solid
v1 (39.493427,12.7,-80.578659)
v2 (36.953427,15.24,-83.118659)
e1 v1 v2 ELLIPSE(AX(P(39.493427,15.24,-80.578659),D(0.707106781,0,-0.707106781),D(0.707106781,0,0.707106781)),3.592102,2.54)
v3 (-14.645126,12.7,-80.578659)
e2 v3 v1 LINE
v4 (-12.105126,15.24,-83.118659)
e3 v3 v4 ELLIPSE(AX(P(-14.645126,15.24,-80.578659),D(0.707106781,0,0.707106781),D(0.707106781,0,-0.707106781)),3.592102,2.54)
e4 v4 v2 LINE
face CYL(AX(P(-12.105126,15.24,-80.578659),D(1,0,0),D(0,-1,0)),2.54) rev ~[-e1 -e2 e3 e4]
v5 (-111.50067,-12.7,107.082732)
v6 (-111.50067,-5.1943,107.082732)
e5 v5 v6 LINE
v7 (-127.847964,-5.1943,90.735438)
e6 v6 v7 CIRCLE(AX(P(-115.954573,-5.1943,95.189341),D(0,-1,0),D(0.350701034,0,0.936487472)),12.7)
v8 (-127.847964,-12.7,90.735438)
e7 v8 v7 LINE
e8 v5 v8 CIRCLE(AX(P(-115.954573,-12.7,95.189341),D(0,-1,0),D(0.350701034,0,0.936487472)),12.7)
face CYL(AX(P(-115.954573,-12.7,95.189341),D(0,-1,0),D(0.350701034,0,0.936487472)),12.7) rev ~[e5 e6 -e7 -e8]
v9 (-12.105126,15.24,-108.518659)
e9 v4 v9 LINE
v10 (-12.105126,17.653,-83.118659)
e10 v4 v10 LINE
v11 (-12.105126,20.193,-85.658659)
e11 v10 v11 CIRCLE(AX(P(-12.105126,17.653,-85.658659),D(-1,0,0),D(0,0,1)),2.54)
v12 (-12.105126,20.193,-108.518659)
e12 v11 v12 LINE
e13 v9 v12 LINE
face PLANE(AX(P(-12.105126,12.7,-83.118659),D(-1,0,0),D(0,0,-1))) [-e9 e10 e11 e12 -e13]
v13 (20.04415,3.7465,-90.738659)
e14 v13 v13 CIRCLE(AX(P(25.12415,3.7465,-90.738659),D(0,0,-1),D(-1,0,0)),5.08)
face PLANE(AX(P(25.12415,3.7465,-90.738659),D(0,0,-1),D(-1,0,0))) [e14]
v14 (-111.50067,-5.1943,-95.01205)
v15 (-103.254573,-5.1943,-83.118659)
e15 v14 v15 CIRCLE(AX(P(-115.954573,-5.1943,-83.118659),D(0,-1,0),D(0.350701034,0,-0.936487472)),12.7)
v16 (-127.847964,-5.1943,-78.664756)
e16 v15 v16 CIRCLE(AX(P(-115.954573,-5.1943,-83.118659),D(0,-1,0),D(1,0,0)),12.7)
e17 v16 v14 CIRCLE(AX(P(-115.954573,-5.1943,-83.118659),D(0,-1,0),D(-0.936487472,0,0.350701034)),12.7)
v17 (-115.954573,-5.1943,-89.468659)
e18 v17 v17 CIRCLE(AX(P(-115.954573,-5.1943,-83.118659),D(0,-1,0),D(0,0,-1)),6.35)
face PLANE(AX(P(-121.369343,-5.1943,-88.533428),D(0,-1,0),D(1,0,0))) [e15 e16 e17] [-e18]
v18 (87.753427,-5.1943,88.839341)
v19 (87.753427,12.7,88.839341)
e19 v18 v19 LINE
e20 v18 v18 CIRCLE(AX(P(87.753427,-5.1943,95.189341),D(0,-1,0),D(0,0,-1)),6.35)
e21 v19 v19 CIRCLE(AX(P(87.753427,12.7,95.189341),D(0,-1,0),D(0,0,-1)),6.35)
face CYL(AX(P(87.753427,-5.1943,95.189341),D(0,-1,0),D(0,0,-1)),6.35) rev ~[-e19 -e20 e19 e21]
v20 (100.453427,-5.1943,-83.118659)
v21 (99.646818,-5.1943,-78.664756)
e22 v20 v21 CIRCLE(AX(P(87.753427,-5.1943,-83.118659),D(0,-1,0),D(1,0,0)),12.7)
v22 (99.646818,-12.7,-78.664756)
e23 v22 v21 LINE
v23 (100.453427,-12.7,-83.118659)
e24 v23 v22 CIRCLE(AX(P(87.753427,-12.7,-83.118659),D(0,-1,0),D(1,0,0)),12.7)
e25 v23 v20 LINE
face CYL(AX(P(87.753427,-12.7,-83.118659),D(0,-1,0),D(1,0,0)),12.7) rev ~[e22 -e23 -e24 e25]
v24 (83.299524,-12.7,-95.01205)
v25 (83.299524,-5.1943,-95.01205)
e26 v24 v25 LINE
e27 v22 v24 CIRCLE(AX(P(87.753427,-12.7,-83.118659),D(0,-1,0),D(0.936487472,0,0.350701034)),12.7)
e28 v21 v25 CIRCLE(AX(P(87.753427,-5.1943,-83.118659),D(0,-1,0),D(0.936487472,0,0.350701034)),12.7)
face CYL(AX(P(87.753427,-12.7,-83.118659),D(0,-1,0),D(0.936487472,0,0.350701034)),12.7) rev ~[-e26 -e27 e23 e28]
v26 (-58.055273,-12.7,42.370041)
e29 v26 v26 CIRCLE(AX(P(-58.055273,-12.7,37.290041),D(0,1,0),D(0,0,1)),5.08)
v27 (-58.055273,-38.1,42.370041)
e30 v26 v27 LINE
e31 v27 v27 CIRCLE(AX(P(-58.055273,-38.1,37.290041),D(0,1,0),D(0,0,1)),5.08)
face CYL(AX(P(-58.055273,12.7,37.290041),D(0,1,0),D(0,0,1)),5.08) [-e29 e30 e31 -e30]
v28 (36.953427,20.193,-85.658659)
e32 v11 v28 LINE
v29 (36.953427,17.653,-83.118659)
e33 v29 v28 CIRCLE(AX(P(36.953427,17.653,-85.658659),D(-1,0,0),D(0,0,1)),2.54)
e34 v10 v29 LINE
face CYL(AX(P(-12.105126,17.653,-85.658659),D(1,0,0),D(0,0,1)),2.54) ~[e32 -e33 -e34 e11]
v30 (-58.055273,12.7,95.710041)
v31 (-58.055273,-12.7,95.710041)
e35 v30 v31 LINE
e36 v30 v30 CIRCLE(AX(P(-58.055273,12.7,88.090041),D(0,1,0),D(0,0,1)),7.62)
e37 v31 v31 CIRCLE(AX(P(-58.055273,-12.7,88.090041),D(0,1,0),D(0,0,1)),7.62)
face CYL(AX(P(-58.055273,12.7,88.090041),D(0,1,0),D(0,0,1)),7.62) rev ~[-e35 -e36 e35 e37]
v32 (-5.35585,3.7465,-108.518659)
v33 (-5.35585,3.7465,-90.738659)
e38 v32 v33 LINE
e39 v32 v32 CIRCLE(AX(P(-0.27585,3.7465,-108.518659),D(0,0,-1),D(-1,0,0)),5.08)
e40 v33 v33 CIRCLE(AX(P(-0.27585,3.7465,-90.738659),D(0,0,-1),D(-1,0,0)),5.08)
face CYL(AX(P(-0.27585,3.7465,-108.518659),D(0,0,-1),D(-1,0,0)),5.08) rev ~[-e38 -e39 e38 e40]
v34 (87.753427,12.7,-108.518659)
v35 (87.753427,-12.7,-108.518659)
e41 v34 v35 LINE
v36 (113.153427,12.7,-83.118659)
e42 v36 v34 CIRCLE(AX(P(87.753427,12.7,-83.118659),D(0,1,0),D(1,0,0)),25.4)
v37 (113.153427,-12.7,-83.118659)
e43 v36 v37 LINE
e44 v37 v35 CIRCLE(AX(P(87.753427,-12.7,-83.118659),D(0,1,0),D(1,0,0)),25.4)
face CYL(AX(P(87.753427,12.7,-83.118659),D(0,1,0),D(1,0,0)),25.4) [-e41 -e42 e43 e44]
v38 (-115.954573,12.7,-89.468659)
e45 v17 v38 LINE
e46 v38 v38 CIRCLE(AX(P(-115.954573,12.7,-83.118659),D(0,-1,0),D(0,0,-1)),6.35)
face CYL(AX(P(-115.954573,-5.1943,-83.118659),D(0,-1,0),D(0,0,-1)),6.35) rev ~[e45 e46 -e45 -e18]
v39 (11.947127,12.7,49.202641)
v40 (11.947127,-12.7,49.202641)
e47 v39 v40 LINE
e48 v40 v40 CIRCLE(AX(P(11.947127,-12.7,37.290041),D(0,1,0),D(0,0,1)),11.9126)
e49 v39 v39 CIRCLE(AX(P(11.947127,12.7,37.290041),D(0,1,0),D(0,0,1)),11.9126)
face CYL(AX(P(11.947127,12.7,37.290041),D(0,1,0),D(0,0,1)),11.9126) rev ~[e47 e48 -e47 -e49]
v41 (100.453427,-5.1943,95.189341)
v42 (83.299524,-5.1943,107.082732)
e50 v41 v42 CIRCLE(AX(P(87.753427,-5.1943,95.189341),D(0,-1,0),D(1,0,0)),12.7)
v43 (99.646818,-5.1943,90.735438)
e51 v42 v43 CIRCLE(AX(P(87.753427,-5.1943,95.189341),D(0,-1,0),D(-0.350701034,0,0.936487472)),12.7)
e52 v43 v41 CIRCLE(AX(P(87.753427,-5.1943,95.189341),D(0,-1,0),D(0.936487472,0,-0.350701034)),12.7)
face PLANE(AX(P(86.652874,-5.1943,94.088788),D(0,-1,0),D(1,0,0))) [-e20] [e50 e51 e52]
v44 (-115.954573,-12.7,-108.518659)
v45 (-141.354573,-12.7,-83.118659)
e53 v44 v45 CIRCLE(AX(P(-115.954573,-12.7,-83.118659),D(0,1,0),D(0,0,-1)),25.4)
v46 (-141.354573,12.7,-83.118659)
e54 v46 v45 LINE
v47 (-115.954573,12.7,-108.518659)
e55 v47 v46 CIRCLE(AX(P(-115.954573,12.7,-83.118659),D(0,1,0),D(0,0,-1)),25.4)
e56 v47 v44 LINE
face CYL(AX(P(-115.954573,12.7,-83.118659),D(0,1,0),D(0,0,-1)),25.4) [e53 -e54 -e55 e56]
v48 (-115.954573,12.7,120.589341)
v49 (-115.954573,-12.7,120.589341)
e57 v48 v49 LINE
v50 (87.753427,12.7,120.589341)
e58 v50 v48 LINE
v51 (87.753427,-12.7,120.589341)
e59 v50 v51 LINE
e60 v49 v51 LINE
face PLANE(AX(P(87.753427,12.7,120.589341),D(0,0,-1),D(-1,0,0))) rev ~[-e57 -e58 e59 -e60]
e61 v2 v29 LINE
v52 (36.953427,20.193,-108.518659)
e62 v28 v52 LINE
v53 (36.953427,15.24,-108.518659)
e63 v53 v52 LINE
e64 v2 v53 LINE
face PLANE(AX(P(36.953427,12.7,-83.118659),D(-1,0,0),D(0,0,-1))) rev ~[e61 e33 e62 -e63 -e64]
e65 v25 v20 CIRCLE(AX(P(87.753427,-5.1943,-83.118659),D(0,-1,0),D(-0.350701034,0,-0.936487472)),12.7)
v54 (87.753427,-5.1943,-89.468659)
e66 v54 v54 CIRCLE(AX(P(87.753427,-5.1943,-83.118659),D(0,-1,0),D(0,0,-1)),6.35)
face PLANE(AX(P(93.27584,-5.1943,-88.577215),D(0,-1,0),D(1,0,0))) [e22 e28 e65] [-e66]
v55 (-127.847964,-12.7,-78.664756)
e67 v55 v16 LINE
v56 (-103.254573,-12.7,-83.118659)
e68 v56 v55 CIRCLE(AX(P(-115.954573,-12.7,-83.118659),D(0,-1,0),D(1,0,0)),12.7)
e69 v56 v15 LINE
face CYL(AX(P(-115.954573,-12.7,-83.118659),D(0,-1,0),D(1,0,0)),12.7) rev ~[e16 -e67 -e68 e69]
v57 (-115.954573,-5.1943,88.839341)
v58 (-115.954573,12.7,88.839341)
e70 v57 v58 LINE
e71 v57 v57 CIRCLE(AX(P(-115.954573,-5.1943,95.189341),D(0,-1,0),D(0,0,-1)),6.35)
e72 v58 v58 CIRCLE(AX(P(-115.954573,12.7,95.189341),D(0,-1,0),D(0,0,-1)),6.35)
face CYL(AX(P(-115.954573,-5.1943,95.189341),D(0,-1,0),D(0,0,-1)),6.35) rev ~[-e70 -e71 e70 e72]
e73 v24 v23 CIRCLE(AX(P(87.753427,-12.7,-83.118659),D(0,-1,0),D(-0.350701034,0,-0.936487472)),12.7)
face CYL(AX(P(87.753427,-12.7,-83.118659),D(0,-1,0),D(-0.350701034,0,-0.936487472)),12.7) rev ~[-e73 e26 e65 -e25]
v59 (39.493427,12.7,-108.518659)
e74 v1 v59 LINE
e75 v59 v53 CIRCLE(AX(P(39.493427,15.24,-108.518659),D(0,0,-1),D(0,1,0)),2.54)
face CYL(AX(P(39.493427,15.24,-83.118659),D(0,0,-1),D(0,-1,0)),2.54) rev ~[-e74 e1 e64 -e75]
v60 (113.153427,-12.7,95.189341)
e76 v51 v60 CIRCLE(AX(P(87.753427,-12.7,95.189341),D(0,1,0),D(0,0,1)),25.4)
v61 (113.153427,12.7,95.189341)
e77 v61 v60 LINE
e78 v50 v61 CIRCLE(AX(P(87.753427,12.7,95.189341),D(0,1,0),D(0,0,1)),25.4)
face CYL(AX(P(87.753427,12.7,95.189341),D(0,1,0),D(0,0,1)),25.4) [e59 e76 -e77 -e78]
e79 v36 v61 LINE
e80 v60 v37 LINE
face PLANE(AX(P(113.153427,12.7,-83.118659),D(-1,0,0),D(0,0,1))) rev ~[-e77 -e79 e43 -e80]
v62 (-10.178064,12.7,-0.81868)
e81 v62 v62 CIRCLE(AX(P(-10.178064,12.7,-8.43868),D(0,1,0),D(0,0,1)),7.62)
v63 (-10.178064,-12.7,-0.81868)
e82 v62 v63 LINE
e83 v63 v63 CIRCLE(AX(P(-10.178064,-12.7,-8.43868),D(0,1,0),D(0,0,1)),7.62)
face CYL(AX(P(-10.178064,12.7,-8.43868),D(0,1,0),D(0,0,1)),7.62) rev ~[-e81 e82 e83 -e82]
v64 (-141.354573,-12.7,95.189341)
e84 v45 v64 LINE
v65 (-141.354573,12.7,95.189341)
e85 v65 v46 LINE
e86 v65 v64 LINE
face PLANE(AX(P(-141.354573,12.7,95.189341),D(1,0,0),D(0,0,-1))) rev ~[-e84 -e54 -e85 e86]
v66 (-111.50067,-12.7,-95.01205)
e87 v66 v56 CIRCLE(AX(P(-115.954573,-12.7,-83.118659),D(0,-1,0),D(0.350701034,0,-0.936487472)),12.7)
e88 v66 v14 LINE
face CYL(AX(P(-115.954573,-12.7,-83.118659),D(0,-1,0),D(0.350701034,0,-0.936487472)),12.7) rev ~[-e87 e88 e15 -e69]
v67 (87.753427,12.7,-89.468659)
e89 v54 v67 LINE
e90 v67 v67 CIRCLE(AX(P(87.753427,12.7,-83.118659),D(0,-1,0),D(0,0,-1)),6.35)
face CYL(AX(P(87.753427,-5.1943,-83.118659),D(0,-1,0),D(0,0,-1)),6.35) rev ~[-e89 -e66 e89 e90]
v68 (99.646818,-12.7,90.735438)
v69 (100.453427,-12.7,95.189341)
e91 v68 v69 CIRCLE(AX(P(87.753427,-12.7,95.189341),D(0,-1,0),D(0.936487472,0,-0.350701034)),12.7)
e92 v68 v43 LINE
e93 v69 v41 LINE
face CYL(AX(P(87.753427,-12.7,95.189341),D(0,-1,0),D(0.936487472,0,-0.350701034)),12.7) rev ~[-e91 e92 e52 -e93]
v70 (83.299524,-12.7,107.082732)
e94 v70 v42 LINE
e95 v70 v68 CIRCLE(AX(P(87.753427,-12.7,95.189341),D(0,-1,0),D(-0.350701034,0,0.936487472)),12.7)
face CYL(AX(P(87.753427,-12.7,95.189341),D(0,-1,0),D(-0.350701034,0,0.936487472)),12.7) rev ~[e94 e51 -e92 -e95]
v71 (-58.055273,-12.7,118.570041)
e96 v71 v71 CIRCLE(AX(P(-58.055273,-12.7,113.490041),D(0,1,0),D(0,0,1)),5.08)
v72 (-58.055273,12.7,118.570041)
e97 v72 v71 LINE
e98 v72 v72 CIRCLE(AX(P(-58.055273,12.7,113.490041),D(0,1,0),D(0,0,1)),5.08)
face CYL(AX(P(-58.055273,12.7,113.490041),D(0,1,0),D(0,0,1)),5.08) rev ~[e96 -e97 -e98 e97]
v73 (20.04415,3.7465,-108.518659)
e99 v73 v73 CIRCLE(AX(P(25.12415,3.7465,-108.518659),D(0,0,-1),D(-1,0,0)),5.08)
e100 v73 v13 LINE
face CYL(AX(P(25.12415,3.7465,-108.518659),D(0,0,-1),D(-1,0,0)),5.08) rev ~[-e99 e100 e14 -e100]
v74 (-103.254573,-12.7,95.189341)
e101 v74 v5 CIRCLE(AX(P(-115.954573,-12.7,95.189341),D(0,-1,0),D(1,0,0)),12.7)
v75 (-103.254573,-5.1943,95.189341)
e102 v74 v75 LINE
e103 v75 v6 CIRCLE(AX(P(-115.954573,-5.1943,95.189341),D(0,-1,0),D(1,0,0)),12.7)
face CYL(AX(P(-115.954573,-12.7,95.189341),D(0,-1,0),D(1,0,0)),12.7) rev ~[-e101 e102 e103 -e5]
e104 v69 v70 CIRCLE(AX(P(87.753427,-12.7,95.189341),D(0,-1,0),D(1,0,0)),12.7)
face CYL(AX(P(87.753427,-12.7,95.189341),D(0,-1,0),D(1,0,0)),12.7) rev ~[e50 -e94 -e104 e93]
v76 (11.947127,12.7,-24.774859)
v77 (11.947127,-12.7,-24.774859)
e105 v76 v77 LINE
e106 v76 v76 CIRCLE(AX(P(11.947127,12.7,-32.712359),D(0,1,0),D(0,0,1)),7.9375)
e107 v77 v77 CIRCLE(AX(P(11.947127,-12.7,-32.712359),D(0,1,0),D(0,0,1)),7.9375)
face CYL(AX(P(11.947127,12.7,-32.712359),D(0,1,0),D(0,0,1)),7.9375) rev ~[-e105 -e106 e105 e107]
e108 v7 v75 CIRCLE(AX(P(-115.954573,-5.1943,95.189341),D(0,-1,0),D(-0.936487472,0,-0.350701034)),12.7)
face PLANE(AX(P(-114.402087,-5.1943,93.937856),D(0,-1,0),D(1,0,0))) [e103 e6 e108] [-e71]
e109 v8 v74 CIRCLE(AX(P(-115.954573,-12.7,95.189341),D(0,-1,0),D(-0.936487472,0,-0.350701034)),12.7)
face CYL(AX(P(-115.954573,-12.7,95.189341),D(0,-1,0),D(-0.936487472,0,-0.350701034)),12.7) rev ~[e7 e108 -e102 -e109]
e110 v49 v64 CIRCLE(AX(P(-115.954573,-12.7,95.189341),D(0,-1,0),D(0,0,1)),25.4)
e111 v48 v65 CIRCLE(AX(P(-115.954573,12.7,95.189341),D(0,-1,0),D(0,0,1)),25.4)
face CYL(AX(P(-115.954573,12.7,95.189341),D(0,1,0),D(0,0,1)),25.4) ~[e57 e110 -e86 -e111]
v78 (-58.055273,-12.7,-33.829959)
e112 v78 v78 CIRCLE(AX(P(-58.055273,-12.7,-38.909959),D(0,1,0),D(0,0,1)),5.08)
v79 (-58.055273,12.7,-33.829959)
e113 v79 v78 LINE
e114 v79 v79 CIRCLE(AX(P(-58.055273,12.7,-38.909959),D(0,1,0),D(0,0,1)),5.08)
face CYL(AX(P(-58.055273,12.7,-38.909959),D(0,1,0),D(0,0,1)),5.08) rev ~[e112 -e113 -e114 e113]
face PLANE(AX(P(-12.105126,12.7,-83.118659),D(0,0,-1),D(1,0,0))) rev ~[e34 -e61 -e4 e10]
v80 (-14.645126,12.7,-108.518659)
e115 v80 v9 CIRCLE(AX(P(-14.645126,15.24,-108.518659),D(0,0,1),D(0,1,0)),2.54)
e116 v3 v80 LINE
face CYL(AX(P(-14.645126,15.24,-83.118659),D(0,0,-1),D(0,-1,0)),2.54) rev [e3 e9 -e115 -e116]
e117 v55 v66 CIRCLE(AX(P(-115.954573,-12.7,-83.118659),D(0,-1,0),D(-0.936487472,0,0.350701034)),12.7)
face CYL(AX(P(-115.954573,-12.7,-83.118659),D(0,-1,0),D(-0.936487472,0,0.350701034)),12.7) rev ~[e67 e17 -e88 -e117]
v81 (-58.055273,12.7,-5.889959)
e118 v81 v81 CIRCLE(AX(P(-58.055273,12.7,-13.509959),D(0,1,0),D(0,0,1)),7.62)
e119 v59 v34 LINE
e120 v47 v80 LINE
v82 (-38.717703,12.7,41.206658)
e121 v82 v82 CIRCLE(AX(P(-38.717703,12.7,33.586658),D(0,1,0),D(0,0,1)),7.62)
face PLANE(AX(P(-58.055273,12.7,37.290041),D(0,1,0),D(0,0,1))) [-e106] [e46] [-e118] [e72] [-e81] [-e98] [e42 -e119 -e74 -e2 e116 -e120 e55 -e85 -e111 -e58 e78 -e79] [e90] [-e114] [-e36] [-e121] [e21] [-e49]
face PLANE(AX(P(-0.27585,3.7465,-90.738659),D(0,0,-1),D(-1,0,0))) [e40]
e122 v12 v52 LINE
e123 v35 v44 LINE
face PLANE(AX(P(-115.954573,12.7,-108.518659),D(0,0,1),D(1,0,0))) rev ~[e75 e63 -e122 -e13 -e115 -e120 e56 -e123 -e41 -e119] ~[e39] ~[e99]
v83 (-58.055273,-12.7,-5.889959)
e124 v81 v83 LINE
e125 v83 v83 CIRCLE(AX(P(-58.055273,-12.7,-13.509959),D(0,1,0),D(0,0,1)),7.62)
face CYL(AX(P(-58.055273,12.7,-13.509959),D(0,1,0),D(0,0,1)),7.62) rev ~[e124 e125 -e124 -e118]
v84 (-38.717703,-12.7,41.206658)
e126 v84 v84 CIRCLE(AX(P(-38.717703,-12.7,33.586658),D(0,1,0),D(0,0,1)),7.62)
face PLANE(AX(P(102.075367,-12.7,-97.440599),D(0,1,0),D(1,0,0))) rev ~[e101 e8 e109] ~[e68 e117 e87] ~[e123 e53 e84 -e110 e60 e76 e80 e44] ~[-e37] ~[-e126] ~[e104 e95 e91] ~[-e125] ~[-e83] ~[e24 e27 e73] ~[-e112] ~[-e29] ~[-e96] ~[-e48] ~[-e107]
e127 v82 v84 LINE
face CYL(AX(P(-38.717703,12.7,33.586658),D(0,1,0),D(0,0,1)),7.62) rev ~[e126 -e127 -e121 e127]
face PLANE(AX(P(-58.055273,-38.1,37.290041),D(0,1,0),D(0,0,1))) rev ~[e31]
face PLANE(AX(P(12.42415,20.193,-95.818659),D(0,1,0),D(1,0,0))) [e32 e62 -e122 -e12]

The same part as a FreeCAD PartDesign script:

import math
import FreeCAD as App
import Part
import Sketcher
Q = App.Units.Quantity


def edges_at(feature, points):
    """Names of the edges that pass closest to the given points."""
    edges = feature.Shape.Edges
    near = lambda p: min(range(len(edges)), key=lambda i: edges[i].distToShape(Part.Vertex(*p))[0])
    return sorted({f"Edge{near(p) + 1}" for p in points})


def add_polygon(sketch, points):
    """Adds a closed chain of lines whose ends are joined by coincident constraints."""
    first, n = sketch.GeometryCount, len(points)
    for a, b in zip(points, points[1:] + points[:1]):
        sketch.addGeometry(Part.LineSegment(App.Vector(*a, 0), App.Vector(*b, 0)), False)
    for i in range(n):
        sketch.addConstraint(Sketcher.Constraint("Coincident", first + i, 2, first + (i + 1) % n, 1))

doc = App.newDocument("Part")
body = doc.addObject("PartDesign::Body", "Body")

# Sketch on XZ plane
sketch1 = body.newObject("Sketcher::SketchObject", "Sketch")
sketch1.AttachmentSupport = (doc.getObject("XZ_Plane"), [""])
sketch1.MapMode = "FlatFace"
add_polygon(sketch1, [(190, -76), (114, -127), (-114, -127), (-190, -76), (-190, 76), (-114, 127), (114, 127), (190, 76)])  # lines 0-7
sketch1.addConstraint([
    Sketcher.Constraint("Horizontal", 1),
    Sketcher.Constraint("Vertical", 3),
    Sketcher.Constraint("Horizontal", 5),
    Sketcher.Constraint("Vertical", 7),
    Sketcher.Constraint("Symmetric", 0, 2, 4, 2, -1, 1),
    Sketcher.Constraint("Symmetric", 2, 2, 6, 2, -1, 1),
    Sketcher.Constraint("Parallel", 0, 4),
    Sketcher.Constraint("Parallel", 2, 6),
    Sketcher.Constraint("Horizontal", 3, 2, 6, 2),
    Sketcher.Constraint("Vertical", 1, 2, 4, 2),
    Sketcher.Constraint("DistanceX", 1, 2, 1, 1, Q("9 in")),
    Sketcher.Constraint("DistanceY", 3, 1, 3, 2, Q("6 in")),
    Sketcher.Constraint("DistanceY", 0, 2, -1, 1, Q("5 in")),
    Sketcher.Constraint("DistanceX", 2, 2, 1, 2, Q("3 in")),
])
pad1 = body.newObject("PartDesign::Pad", "Pad")
pad1.Profile = sketch1
pad1.Length = Q("1 in")
pad1.Midplane = True

# Sketch on XZ plane
sketch2 = body.newObject("Sketcher::SketchObject", "Sketch001")
sketch2.AttachmentSupport = (doc.getObject("XZ_Plane"), [""])
sketch2.MapMode = "FlatFace"
sketch2.AttachmentOffset = App.Placement(App.Vector(0, 0, -0.5 * 25.4), App.Rotation())
sketch2.addGeometry([
    Part.Circle(App.Vector(12, 37, 0), App.Vector(0, 0, 1), 12),
    Part.Circle(App.Vector(12, -33, 0), App.Vector(0, 0, 1), 8),
], False)
sketch2.addConstraint([
    Sketcher.Constraint("Vertical", 0, 3, 1, 3),
    Sketcher.Constraint("Diameter", 0, Q("0.938 in")),
    Sketcher.Constraint("Diameter", 1, Q("0.625 in")),
    Sketcher.Constraint("DistanceY", 1, 3, 0, 3, Q("2.756 in")),
    Sketcher.Constraint("DistanceY", -1, 1, 0, 3, 37.290041),
    Sketcher.Constraint("DistanceX", -1, 1, 0, 3, 11.947127),
])
pocket1 = body.newObject("PartDesign::Pocket", "Pocket")
pocket1.Profile = sketch2
pocket1.Length = 231.357136
pocket1.Reversed = True

# Sketch on XZ plane
sketch3 = body.newObject("Sketcher::SketchObject", "Sketch002")
sketch3.AttachmentSupport = (doc.getObject("XZ_Plane"), [""])
sketch3.MapMode = "FlatFace"
sketch3.AttachmentOffset = App.Placement(App.Vector(0, 0, -0.5 * 25.4), App.Rotation())
add_polygon(sketch3, [(-114, 127), (114, 127), (190, 76), (190, -76), (114, -127), (-114, -127), (-190, -76), (-190, 76)])  # lines 0-7
add_polygon(sketch3, [(-141, 95), (-141, -83), (-116, -109), (88, -109), (113, -83), (113, 95), (88, 121), (-116, 121)])  # lines 8-15
sketch3.addConstraint([
    Sketcher.Constraint("Horizontal", 0),
    Sketcher.Constraint("Vertical", 2),
    Sketcher.Constraint("Horizontal", 4),
    Sketcher.Constraint("Vertical", 6),
    Sketcher.Constraint("Vertical", 8),
    Sketcher.Constraint("Horizontal", 10),
    Sketcher.Constraint("Vertical", 12),
    Sketcher.Constraint("Horizontal", 14),
    Sketcher.Constraint("Symmetric", 0, 2, 4, 2, -1, 1),
    Sketcher.Constraint("Symmetric", 1, 2, 5, 2, -1, 1),
    Sketcher.Constraint("Parallel", 3, 7),
    Sketcher.Constraint("Perpendicular", 9, 11),
    Sketcher.Constraint("Perpendicular", 11, 13),
    Sketcher.Constraint("Perpendicular", 13, 15),
    Sketcher.Constraint("Horizontal", 2, 2, 5, 2),
    Sketcher.Constraint("Horizontal", 1, 2, 6, 2),
    Sketcher.Constraint("Horizontal", 8, 2, 11, 2),
    Sketcher.Constraint("Horizontal", 12, 2, 15, 2),
    Sketcher.Constraint("Vertical", 0, 2, 3, 2),
    Sketcher.Constraint("Vertical", 10, 2, 13, 2),
    Sketcher.Constraint("Vertical", 9, 2, 14, 2),
    Sketcher.Constraint("DistanceX", 0, 1, 0, 2, Q("9 in")),
    Sketcher.Constraint("DistanceY", 2, 2, 2, 1, Q("6 in")),
    Sketcher.Constraint("DistanceY", -1, 1, 0, 2, Q("5 in")),
    Sketcher.Constraint("DistanceX", 0, 2, 1, 2, Q("3 in")),
    Sketcher.Constraint("DistanceX", 8, 2, 9, 2, Q("1 in")),
    Sketcher.Constraint("DistanceX", 10, 1, 10, 2, Q("8.02 in")),
    Sketcher.Constraint("DistanceY", 8, 2, 8, 1, Q("7.02 in")),
    Sketcher.Constraint("DistanceY", 8, 2, -1, 1, 83.118659),
    Sketcher.Constraint("DistanceX", 8, 2, -1, 1, 141.354573),
])
pocket2 = body.newObject("PartDesign::Pocket", "Pocket001")
pocket2.Profile = sketch3
pocket2.Type = "ThroughAll"
pocket2.Reversed = True

# Sketch on XZ plane
sketch4 = body.newObject("Sketcher::SketchObject", "Sketch003")
sketch4.AttachmentSupport = (doc.getObject("XZ_Plane"), [""])
sketch4.MapMode = "FlatFace"
sketch4.AttachmentOffset = App.Placement(App.Vector(0, 0, 0.5 * 25.4), App.Rotation())
sketch4.addGeometry([
    Part.ArcOfCircle(Part.Circle(App.Vector(87.8, 95.2, 0), App.Vector(0, 0, 1), 12.7), math.radians(111), math.radians(339)),  # 0
    Part.ArcOfCircle(Part.Circle(App.Vector(87.8, 95.2, 0), App.Vector(0, 0, 1), 12.7), math.radians(-21), math.radians(0)),  # 1
    Part.ArcOfCircle(Part.Circle(App.Vector(87.8, 95.2, 0), App.Vector(0, 0, 1), 12.7), math.radians(0), math.radians(111)),  # 2
    Part.ArcOfCircle(Part.Circle(App.Vector(-116, 95.2, 0), App.Vector(0, 0, 1), 12.7), math.radians(0), math.radians(69)),  # 3
    Part.ArcOfCircle(Part.Circle(App.Vector(-116, 95.2, 0), App.Vector(0, 0, 1), 12.7), math.radians(69), math.radians(201)),  # 4
    Part.ArcOfCircle(Part.Circle(App.Vector(-116, 95.2, 0), App.Vector(0, 0, 1), 12.7), math.radians(-159), math.radians(0)),  # 5
    Part.ArcOfCircle(Part.Circle(App.Vector(87.8, -83.1, 0), App.Vector(0, 0, 1), 12.7), math.radians(0), math.radians(21)),  # 6
    Part.ArcOfCircle(Part.Circle(App.Vector(87.8, -83.1, 0), App.Vector(0, 0, 1), 12.7), math.radians(21), math.radians(249)),  # 7
    Part.ArcOfCircle(Part.Circle(App.Vector(87.8, -83.1, 0), App.Vector(0, 0, 1), 12.7), math.radians(-111), math.radians(0)),  # 8
    Part.ArcOfCircle(Part.Circle(App.Vector(-116, -83.1, 0), App.Vector(0, 0, 1), 12.7), math.radians(159), math.radians(291)),  # 9
    Part.ArcOfCircle(Part.Circle(App.Vector(-116, -83.1, 0), App.Vector(0, 0, 1), 12.7), math.radians(-69), math.radians(0)),  # 10
    Part.ArcOfCircle(Part.Circle(App.Vector(-116, -83.1, 0), App.Vector(0, 0, 1), 12.7), math.radians(0), math.radians(159)),  # 11
], False)
sketch4.addConstraint([
    Sketcher.Constraint("Tangent", 0, 2, 1, 1),
    Sketcher.Constraint("Tangent", 1, 2, 2, 1),
    Sketcher.Constraint("Tangent", 2, 2, 0, 1),
    Sketcher.Constraint("Tangent", 3, 2, 4, 1),
    Sketcher.Constraint("Tangent", 4, 2, 5, 1),
    Sketcher.Constraint("Tangent", 5, 2, 3, 1),
    Sketcher.Constraint("Tangent", 6, 2, 7, 1),
    Sketcher.Constraint("Tangent", 7, 2, 8, 1),
    Sketcher.Constraint("Tangent", 8, 2, 6, 1),
    Sketcher.Constraint("Tangent", 9, 2, 10, 1),
    Sketcher.Constraint("Tangent", 10, 2, 11, 1),
    Sketcher.Constraint("Tangent", 11, 2, 9, 1),
    Sketcher.Constraint("Equal", 2, 3),
    Sketcher.Constraint("Equal", 5, 6),
    Sketcher.Constraint("Equal", 8, 9),
    Sketcher.Constraint("Horizontal", 2, 3, 3, 3),
    Sketcher.Constraint("Horizontal", 8, 3, 9, 3),
    Sketcher.Constraint("Horizontal", 5, 3, 1, 2),
    Sketcher.Constraint("Horizontal", 2, 2, 3, 2),
    Sketcher.Constraint("Horizontal", 0, 2, 4, 2),
    Sketcher.Constraint("Horizontal", 1, 2, 5, 2),
    Sketcher.Constraint("Horizontal", 11, 3, 8, 2),
    Sketcher.Constraint("Horizontal", 7, 2, 9, 2),
    Sketcher.Constraint("Horizontal", 8, 2, 10, 2),
    Sketcher.Constraint("Horizontal", 6, 2, 11, 2),
    Sketcher.Constraint("Vertical", 2, 3, 6, 3),
    Sketcher.Constraint("Vertical", 5, 3, 9, 3),
    Sketcher.Constraint("Vertical", 0, 2, 6, 2),
    Sketcher.Constraint("Vertical", 2, 2, 7, 2),
    Sketcher.Constraint("Radius", 0, Q("0.5 in")),
    Sketcher.Constraint("DistanceX", 3, 3, 1, 3, Q("8.02 in")),
    Sketcher.Constraint("DistanceY", 6, 3, 0, 3, Q("7.02 in")),
    Sketcher.Constraint("DistanceY", -1, 1, 0, 3, 95.189341),
    Sketcher.Constraint("DistanceY", -1, 1, 2, 2, 107.082732),
    Sketcher.Constraint("DistanceX", 3, 2, -1, 1, 111.50067),
    Sketcher.Constraint("DistanceX", 0, 3, 0, 2, 11.893391),
])
pocket3 = body.newObject("PartDesign::Pocket", "Pocket002")
pocket3.Profile = sketch4
pocket3.Length = Q("0.2955 in")

# Sketch on XZ plane
sketch5 = body.newObject("Sketcher::SketchObject", "Sketch004")
sketch5.AttachmentSupport = (doc.getObject("XZ_Plane"), [""])
sketch5.MapMode = "FlatFace"
sketch5.AttachmentOffset = App.Placement(App.Vector(0, 0, 0.2045 * 25.4), App.Rotation())
sketch5.addGeometry([
    Part.Circle(App.Vector(-116, 95, 0), App.Vector(0, 0, 1), 6),
    Part.Circle(App.Vector(88, 95, 0), App.Vector(0, 0, 1), 6),
    Part.Circle(App.Vector(88, -83, 0), App.Vector(0, 0, 1), 6),
    Part.Circle(App.Vector(-116, -83, 0), App.Vector(0, 0, 1), 6),
], False)
sketch5.addConstraint([
    Sketcher.Constraint("Equal", 0, 1),
    Sketcher.Constraint("Equal", 1, 2),
    Sketcher.Constraint("Equal", 2, 3),
    Sketcher.Constraint("Horizontal", 0, 3, 1, 3),
    Sketcher.Constraint("Horizontal", 2, 3, 3, 3),
    Sketcher.Constraint("Vertical", 1, 3, 2, 3),
    Sketcher.Constraint("Vertical", 0, 3, 3, 3),
    Sketcher.Constraint("Diameter", 0, Q("0.5 in")),
    Sketcher.Constraint("DistanceX", 0, 3, 1, 3, Q("8.02 in")),
    Sketcher.Constraint("DistanceY", 2, 3, 1, 3, Q("7.02 in")),
    Sketcher.Constraint("DistanceY", -1, 1, 0, 3, 95.189341),
    Sketcher.Constraint("DistanceX", 0, 3, -1, 1, 115.954573),
])
pocket4 = body.newObject("PartDesign::Pocket", "Pocket003")
pocket4.Profile = sketch5
pocket4.Type = "ThroughAll"

# Sketch on XZ plane
sketch6 = body.newObject("Sketcher::SketchObject", "Sketch005")
sketch6.AttachmentSupport = (doc.getObject("XZ_Plane"), [""])
sketch6.MapMode = "FlatFace"
sketch6.AttachmentOffset = App.Placement(App.Vector(0, 0, -0.5 * 25.4), App.Rotation())
sketch6.addGeometry([
    Part.ArcOfCircle(Part.Circle(App.Vector(88, -83, 0), App.Vector(0, 0, 1), 25), math.radians(-90), math.radians(0)),  # 0
    Part.LineSegment(App.Vector(88, -109, 0), App.Vector(113, -83, 0)),  # 1
    Part.ArcOfCircle(Part.Circle(App.Vector(-116, -83, 0), App.Vector(0, 0, 1), 25), math.radians(180), math.radians(270)),  # 2
    Part.LineSegment(App.Vector(-141, -83, 0), App.Vector(-116, -109, 0)),  # 3
    Part.ArcOfCircle(Part.Circle(App.Vector(-116, 95, 0), App.Vector(0, 0, 1), 25), math.radians(90), math.radians(180)),  # 4
    Part.LineSegment(App.Vector(-116, 121, 0), App.Vector(-141, 95, 0)),  # 5
    Part.ArcOfCircle(Part.Circle(App.Vector(88, 95, 0), App.Vector(0, 0, 1), 25), math.radians(0), math.radians(90)),  # 6
    Part.LineSegment(App.Vector(113, 95, 0), App.Vector(88, 121, 0)),  # 7
], False)
sketch6.addConstraint([
    Sketcher.Constraint("Coincident", 0, 1, 1, 1),
    Sketcher.Constraint("Coincident", 1, 2, 0, 2),
    Sketcher.Constraint("Coincident", 2, 1, 3, 1),
    Sketcher.Constraint("Coincident", 3, 2, 2, 2),
    Sketcher.Constraint("Coincident", 4, 1, 5, 1),
    Sketcher.Constraint("Coincident", 5, 2, 4, 2),
    Sketcher.Constraint("Coincident", 6, 1, 7, 1),
    Sketcher.Constraint("Coincident", 7, 2, 6, 2),
    Sketcher.Constraint("Equal", 0, 2),
    Sketcher.Constraint("Equal", 2, 4),
    Sketcher.Constraint("Equal", 4, 6),
    Sketcher.Constraint("Perpendicular", 1, 3),
    Sketcher.Constraint("Perpendicular", 3, 5),
    Sketcher.Constraint("Perpendicular", 5, 7),
    Sketcher.Constraint("Horizontal", 0, 3, 2, 3),
    Sketcher.Constraint("Horizontal", 4, 3, 6, 3),
    Sketcher.Constraint("Horizontal", 2, 3, 1, 2),
    Sketcher.Constraint("Horizontal", 1, 2, 2, 1),
    Sketcher.Constraint("Horizontal", 6, 3, 5, 2),
    Sketcher.Constraint("Horizontal", 5, 2, 6, 1),
    Sketcher.Constraint("Vertical", 2, 3, 4, 3),
    Sketcher.Constraint("Vertical", 0, 3, 6, 3),
    Sketcher.Constraint("Vertical", 6, 3, 0, 1),
    Sketcher.Constraint("Radius", 0, Q("1 in")),
    Sketcher.Constraint("DistanceX", 2, 3, 0, 3, Q("8.02 in")),
    Sketcher.Constraint("DistanceY", 2, 3, 4, 3, Q("7.02 in")),
    Sketcher.Constraint("DistanceY", 0, 3, -1, 1, 83.118659),
    Sketcher.Constraint("DistanceX", -1, 1, 0, 3, 87.753427),
])
pad2 = body.newObject("PartDesign::Pad", "Pad001")
pad2.Profile = sketch6
pad2.Length = Q("1 in")

# Sketch on XZ plane
sketch7 = body.newObject("Sketcher::SketchObject", "Sketch006")
sketch7.AttachmentSupport = (doc.getObject("XZ_Plane"), [""])
sketch7.MapMode = "FlatFace"
sketch7.AttachmentOffset = App.Placement(App.Vector(0, 0, -0.5 * 25.4), App.Rotation())
add_polygon(sketch7, [(-12, -109), (-12, -83), (37, -83), (37, -109)])  # lines 0-3
sketch7.addConstraint([
    Sketcher.Constraint("Vertical", 0),
    Sketcher.Constraint("Horizontal", 1),
    Sketcher.Constraint("Vertical", 2),
    Sketcher.Constraint("Horizontal", 3),
    Sketcher.Constraint("DistanceY", 0, 1, 0, 2, Q("1 in")),
    Sketcher.Constraint("DistanceX", 1, 1, 1, 2, 49.058553),
    Sketcher.Constraint("DistanceY", 0, 2, -1, 1, 83.118659),
    Sketcher.Constraint("DistanceX", 0, 2, -1, 1, 12.105126),
])
pad3 = body.newObject("PartDesign::Pad", "Pad002")
pad3.Profile = sketch7
pad3.Length = Q("0.295 in")
pad3.Reversed = True
doc.recompute()

fillet = body.newObject("PartDesign::Fillet", "Fillet")
fillet.Base = (pad3, edges_at(pad3, [
    (-12.105, 12.7, -95.819),
    (12.424, 12.7, -83.119),
    (12.424, 20.193, -83.119),
    (36.953, 12.7, -95.819),
]))
fillet.Radius = Q("0.1 in")

# Sketch on XY plane
sketch8 = body.newObject("Sketcher::SketchObject", "Sketch007")
sketch8.AttachmentSupport = (doc.getObject("XY_Plane"), [""])
sketch8.MapMode = "FlatFace"
sketch8.AttachmentOffset = App.Placement(App.Vector(0, 0, -108.518659), App.Rotation())
sketch8.addGeometry([
    Part.Circle(App.Vector(0, 4, 0), App.Vector(0, 0, 1), 5),
    Part.Circle(App.Vector(25, 4, 0), App.Vector(0, 0, 1), 5),
], False)
sketch8.addConstraint([
    Sketcher.Constraint("Equal", 0, 1),
    Sketcher.Constraint("Horizontal", 0, 3, 1, 3),
    Sketcher.Constraint("Diameter", 0, Q("0.4 in")),
    Sketcher.Constraint("DistanceX", 0, 3, 1, 3, Q("1 in")),
    Sketcher.Constraint("DistanceY", -1, 1, 0, 3, Q("0.1475 in")),
    Sketcher.Constraint("DistanceX", 0, 3, -1, 1, 0.27585),
])
pocket5 = body.newObject("PartDesign::Pocket", "Pocket004")
pocket5.Profile = sketch8
pocket5.Length = Q("0.7 in")
pocket5.Reversed = True

# Sketch on XZ plane
sketch9 = body.newObject("Sketcher::SketchObject", "Sketch008")
sketch9.AttachmentSupport = (doc.getObject("XZ_Plane"), [""])
sketch9.MapMode = "FlatFace"
sketch9.AttachmentOffset = App.Placement(App.Vector(0, 0, -0.5 * 25.4), App.Rotation())
sketch9.addGeometry([
    Part.Circle(App.Vector(-10, -8, 0), App.Vector(0, 0, 1), 8),
    Part.Circle(App.Vector(-39, 34, 0), App.Vector(0, 0, 1), 8),
], False)
sketch9.addConstraint([
    Sketcher.Constraint("Equal", 0, 1),
    Sketcher.Constraint("Diameter", 0, Q("0.6 in")),
    Sketcher.Constraint("DistanceY", 0, 3, -1, 1, 8.43868),
    Sketcher.Constraint("DistanceY", -1, 1, 1, 3, 33.586658),
    Sketcher.Constraint("DistanceX", 1, 3, 0, 3, 28.539639),
    Sketcher.Constraint("DistanceX", 0, 3, -1, 1, 10.178064),
])
pocket6 = body.newObject("PartDesign::Pocket", "Pocket005")
pocket6.Profile = sketch9
pocket6.Type = "ThroughAll"
pocket6.Reversed = True

# Sketch on XZ plane
sketch10 = body.newObject("Sketcher::SketchObject", "Sketch009")
sketch10.AttachmentSupport = (doc.getObject("XZ_Plane"), [""])
sketch10.MapMode = "FlatFace"
sketch10.AttachmentOffset = App.Placement(App.Vector(0, 0, -0.5 * 25.4), App.Rotation())
sketch10.addGeometry(Part.Circle(App.Vector(-58, 37, 0), App.Vector(0, 0, 1), 5), False)
sketch10.addConstraint([
    Sketcher.Constraint("Diameter", 0, Q("0.4 in")),
    Sketcher.Constraint("DistanceY", -1, 1, 0, 3, 37.290041),
    Sketcher.Constraint("DistanceX", 0, 3, -1, 1, 58.055273),
])
pad4 = body.newObject("PartDesign::Pad", "Pad003")
pad4.Profile = sketch10
pad4.Length = Q("2 in")

# Sketch on XZ plane
sketch11 = body.newObject("Sketcher::SketchObject", "Sketch010")
sketch11.AttachmentSupport = (doc.getObject("XZ_Plane"), [""])
sketch11.MapMode = "FlatFace"
sketch11.AttachmentOffset = App.Placement(App.Vector(0, 0, -0.5 * 25.4), App.Rotation())
sketch11.addGeometry([
    Part.Circle(App.Vector(-58, -14, 0), App.Vector(0, 0, 1), 8),
    Part.Circle(App.Vector(-58, 88, 0), App.Vector(0, 0, 1), 8),
], False)
sketch11.addConstraint([
    Sketcher.Constraint("Equal", 0, 1),
    Sketcher.Constraint("Vertical", 0, 3, 1, 3),
    Sketcher.Constraint("Diameter", 0, Q("0.6 in")),
    Sketcher.Constraint("DistanceY", 0, 3, 1, 3, Q("4 in")),
    Sketcher.Constraint("DistanceY", 0, 3, -1, 1, 13.509959),
    Sketcher.Constraint("DistanceX", 0, 3, -1, 1, 58.055273),
])
pocket7 = body.newObject("PartDesign::Pocket", "Pocket006")
pocket7.Profile = sketch11
pocket7.Type = "ThroughAll"
pocket7.Reversed = True

# Sketch on XZ plane
sketch12 = body.newObject("Sketcher::SketchObject", "Sketch011")
sketch12.AttachmentSupport = (doc.getObject("XZ_Plane"), [""])
sketch12.MapMode = "FlatFace"
sketch12.AttachmentOffset = App.Placement(App.Vector(0, 0, -0.5 * 25.4), App.Rotation())
sketch12.addGeometry([
    Part.Circle(App.Vector(-58, -39, 0), App.Vector(0, 0, 1), 5),
    Part.Circle(App.Vector(-58, 113, 0), App.Vector(0, 0, 1), 5),
], False)
sketch12.addConstraint([
    Sketcher.Constraint("Equal", 0, 1),
    Sketcher.Constraint("Vertical", 0, 3, 1, 3),
    Sketcher.Constraint("Diameter", 0, Q("0.4 in")),
    Sketcher.Constraint("DistanceY", 0, 3, 1, 3, Q("6 in")),
    Sketcher.Constraint("DistanceY", 0, 3, -1, 1, 38.909959),
    Sketcher.Constraint("DistanceX", 0, 3, -1, 1, 58.055273),
])
pocket8 = body.newObject("PartDesign::Pocket", "Pocket007")
pocket8.Profile = sketch12
pocket8.Type = "ThroughAll"
pocket8.Reversed = True

doc.recompute()
